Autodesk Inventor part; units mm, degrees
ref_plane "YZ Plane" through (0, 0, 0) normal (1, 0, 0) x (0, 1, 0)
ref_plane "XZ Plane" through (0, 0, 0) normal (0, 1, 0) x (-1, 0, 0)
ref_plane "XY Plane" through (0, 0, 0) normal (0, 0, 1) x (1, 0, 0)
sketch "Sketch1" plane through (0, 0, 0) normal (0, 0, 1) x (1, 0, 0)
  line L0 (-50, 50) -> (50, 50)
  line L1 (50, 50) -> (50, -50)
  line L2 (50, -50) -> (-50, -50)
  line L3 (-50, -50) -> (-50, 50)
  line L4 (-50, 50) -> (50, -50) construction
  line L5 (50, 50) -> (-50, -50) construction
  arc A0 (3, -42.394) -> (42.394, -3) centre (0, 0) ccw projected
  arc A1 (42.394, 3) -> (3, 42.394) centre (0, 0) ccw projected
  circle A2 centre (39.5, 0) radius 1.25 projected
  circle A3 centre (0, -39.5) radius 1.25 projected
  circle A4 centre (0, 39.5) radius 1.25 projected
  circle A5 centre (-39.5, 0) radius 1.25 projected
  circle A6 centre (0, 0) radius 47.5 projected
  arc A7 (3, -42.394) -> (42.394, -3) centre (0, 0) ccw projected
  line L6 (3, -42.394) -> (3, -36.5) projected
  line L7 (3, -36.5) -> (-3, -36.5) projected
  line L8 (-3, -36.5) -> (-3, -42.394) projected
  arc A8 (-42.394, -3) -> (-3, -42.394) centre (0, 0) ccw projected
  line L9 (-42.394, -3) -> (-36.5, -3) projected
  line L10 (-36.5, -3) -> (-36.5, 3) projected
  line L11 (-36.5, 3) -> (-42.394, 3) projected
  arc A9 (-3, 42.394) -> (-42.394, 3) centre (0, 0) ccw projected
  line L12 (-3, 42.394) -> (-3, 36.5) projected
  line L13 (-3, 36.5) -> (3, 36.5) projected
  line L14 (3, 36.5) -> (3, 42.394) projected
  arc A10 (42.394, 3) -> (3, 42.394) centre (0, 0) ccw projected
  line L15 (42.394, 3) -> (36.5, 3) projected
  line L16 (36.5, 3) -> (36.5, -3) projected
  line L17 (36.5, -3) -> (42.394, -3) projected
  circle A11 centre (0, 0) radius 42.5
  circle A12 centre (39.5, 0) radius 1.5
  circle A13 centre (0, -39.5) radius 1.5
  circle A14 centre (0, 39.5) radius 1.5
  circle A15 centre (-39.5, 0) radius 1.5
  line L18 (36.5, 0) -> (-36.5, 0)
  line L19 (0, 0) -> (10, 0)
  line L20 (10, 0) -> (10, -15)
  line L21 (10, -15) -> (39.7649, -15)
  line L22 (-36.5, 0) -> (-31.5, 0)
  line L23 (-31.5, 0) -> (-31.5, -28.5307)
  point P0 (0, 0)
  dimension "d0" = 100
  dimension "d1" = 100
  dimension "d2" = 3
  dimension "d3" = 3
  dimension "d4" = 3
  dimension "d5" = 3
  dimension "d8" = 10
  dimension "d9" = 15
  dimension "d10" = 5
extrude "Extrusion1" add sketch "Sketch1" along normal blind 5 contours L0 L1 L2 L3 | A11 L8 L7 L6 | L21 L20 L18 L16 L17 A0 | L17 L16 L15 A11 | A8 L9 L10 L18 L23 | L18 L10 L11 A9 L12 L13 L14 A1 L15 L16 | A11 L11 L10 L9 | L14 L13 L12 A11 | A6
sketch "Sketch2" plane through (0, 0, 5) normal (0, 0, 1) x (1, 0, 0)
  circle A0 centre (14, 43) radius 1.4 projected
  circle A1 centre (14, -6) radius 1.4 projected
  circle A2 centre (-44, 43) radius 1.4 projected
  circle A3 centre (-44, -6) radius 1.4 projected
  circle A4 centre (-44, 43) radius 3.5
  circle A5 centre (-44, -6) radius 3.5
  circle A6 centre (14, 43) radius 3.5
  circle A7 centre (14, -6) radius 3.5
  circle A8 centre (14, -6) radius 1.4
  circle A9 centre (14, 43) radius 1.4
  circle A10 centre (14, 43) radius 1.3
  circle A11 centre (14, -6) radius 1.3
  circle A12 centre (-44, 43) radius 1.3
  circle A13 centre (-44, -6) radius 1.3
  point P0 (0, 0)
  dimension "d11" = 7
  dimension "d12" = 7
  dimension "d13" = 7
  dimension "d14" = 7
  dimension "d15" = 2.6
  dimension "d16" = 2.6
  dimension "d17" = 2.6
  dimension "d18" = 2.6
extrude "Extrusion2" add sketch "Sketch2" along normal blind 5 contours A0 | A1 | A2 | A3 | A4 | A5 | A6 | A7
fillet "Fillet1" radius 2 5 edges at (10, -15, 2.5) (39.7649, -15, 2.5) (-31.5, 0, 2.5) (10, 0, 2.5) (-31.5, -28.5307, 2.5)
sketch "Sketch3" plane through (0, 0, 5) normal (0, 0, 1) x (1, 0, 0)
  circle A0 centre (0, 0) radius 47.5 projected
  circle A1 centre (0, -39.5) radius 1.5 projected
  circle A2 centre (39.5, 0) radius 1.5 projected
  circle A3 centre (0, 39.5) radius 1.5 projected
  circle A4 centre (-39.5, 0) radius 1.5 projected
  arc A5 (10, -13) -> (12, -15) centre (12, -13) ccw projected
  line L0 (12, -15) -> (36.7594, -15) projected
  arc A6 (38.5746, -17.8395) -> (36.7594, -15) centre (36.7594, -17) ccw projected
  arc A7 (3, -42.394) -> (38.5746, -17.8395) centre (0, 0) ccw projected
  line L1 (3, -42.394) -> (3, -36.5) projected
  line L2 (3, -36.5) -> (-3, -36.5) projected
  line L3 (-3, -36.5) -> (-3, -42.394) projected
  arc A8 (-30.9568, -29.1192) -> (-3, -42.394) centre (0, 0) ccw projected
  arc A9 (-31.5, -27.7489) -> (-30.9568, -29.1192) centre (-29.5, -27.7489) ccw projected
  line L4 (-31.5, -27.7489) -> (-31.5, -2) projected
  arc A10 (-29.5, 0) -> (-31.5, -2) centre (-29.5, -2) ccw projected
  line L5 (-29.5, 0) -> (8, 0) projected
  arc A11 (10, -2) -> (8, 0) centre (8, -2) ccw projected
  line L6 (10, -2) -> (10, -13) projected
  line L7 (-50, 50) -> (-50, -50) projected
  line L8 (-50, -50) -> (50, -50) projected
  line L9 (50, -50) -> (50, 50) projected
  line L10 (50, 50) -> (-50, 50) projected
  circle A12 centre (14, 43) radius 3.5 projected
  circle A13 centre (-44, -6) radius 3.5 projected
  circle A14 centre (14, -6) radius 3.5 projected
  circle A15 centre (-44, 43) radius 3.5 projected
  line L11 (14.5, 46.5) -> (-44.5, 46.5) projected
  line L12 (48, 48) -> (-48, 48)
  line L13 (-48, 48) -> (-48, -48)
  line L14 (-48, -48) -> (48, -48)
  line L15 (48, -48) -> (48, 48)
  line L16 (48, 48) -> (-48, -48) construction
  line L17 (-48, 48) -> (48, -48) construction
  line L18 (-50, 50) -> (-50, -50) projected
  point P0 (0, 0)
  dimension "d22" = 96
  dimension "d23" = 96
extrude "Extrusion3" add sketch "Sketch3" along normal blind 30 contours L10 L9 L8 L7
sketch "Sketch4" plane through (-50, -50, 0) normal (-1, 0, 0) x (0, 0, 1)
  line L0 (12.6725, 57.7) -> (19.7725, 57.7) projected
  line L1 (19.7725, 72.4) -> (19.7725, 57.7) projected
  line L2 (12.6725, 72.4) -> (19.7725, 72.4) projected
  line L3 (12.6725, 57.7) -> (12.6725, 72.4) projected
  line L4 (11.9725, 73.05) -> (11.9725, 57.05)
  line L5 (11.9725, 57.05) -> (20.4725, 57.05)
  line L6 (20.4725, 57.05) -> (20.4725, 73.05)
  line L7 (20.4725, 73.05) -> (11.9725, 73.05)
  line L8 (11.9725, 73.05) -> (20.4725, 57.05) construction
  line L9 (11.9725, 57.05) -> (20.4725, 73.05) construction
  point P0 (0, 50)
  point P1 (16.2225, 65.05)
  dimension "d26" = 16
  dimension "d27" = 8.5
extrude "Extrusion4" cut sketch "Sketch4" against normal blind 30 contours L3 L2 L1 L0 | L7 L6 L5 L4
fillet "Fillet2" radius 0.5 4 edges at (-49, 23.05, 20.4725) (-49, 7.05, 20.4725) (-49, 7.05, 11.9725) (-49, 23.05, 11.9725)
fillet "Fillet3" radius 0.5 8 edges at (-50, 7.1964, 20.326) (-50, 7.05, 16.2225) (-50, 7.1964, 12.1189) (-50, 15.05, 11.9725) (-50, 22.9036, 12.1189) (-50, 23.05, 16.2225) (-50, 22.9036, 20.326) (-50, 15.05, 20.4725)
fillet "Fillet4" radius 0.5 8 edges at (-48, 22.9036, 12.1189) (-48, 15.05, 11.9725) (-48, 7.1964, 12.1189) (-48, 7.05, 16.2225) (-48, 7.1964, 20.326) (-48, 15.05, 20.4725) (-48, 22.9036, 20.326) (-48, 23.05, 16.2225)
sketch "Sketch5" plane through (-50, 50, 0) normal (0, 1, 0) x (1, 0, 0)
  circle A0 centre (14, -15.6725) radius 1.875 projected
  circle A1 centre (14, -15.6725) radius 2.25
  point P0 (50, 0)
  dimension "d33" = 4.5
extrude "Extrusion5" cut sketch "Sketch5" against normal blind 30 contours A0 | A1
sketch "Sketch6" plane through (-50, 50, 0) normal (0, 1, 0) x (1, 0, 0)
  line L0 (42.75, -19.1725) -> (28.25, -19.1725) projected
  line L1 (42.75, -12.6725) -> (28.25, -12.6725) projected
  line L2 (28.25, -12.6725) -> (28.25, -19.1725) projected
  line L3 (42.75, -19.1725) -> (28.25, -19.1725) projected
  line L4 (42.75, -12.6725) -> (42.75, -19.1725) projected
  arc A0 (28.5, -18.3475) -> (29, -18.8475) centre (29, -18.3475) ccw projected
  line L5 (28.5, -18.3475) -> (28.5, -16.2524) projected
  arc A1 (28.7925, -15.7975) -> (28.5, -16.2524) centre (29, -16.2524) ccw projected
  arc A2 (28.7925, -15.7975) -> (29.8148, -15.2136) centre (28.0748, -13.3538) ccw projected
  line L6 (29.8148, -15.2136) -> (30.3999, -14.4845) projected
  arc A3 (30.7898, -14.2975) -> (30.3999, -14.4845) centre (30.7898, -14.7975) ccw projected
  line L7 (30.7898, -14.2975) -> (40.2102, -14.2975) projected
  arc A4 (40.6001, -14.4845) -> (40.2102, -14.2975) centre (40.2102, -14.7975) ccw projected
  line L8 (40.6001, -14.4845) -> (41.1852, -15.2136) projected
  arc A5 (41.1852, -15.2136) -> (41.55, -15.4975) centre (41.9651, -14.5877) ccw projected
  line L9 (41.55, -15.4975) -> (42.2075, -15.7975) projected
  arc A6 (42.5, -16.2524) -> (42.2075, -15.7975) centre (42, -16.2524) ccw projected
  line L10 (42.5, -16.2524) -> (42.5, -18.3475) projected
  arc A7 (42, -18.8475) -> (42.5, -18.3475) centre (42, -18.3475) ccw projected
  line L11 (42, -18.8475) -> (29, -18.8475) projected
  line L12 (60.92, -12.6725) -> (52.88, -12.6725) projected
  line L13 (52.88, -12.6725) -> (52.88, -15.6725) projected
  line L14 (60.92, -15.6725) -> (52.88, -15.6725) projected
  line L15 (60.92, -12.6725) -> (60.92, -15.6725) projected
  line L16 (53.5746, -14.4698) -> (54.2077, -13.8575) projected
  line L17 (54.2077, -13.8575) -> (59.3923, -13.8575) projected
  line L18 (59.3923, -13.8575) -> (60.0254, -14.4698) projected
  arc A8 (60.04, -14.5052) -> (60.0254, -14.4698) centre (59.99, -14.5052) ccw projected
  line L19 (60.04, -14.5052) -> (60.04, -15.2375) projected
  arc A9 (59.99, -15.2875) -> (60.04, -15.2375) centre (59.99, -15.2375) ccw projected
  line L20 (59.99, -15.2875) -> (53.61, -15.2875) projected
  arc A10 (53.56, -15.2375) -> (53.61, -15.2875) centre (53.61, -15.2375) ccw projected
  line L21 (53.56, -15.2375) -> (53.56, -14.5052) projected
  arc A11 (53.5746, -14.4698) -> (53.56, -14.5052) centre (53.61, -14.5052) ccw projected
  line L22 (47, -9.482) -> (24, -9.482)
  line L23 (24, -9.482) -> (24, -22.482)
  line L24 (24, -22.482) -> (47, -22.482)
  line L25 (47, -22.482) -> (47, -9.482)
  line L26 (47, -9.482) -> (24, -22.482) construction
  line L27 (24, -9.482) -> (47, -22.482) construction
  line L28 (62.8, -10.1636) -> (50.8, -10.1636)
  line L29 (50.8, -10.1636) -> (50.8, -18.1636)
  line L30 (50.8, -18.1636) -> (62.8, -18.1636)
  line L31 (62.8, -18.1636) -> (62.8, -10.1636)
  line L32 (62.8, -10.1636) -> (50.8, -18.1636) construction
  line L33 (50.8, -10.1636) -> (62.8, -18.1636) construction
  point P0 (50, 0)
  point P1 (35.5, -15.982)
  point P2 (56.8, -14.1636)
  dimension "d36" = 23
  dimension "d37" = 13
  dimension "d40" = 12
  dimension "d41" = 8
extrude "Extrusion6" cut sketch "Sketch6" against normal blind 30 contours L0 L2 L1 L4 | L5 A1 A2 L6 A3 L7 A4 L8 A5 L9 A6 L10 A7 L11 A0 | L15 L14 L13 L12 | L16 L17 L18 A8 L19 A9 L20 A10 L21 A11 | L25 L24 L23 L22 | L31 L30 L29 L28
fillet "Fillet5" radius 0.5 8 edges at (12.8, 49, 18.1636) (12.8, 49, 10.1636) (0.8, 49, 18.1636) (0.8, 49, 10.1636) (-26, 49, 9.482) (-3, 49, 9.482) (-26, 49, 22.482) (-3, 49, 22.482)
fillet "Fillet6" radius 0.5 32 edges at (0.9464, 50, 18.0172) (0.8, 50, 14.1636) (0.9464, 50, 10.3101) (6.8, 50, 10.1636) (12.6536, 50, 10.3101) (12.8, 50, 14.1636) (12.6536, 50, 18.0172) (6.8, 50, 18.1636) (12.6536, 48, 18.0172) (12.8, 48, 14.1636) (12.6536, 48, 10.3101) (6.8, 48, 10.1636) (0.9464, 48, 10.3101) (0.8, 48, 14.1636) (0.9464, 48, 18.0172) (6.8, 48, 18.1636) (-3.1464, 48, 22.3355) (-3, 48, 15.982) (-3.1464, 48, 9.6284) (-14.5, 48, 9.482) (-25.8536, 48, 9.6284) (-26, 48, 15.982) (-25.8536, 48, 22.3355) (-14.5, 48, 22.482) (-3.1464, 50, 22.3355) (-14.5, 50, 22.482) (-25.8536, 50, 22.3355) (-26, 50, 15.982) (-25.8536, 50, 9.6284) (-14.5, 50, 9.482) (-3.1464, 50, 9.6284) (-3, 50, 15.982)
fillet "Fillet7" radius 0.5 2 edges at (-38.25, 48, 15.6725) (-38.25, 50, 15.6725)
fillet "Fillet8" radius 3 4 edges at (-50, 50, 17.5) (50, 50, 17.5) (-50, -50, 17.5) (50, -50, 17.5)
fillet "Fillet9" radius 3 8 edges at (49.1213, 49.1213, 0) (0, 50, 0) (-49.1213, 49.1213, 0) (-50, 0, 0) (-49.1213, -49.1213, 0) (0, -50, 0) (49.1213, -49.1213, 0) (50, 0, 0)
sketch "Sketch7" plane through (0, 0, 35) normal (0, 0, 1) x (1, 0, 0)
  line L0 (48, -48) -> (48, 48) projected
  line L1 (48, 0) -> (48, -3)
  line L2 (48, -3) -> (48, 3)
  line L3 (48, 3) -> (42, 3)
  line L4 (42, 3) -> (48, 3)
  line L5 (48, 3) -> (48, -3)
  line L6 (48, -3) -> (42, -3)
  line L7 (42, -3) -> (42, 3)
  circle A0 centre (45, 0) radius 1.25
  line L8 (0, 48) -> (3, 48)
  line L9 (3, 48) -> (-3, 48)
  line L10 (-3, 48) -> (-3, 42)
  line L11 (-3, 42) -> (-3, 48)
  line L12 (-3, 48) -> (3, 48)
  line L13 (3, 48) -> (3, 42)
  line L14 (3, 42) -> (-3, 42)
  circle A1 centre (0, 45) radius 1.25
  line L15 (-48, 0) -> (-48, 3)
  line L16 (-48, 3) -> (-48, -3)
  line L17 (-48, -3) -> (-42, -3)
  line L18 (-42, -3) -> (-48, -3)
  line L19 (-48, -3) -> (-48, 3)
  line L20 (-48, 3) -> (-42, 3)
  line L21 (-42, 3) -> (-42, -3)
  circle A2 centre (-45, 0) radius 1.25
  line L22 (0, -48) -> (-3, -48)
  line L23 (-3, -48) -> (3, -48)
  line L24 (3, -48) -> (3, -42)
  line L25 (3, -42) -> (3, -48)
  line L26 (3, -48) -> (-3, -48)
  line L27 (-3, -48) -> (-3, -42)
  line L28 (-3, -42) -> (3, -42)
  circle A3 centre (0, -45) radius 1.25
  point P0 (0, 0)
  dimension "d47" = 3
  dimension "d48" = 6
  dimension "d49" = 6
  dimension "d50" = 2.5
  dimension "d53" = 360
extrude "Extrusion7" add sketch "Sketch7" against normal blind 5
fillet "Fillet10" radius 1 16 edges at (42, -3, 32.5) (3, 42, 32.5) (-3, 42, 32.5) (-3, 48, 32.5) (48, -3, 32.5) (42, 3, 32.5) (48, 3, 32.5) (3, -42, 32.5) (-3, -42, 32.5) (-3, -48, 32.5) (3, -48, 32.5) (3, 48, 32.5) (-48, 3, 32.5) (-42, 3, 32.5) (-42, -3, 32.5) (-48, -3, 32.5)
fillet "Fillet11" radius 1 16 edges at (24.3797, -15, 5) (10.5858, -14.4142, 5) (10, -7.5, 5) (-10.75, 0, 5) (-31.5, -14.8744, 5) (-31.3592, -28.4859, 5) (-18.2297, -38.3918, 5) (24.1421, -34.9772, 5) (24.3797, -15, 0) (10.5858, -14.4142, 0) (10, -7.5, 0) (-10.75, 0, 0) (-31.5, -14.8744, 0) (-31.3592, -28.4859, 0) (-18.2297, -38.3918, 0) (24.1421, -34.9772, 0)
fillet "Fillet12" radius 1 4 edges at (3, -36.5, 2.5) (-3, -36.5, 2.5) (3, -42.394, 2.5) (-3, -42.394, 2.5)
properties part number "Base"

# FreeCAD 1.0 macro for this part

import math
import FreeCAD as App
import Part
import Sketcher
from FreeCAD import Vector


def edges_at(feature, points):
    """Names of the edges that pass closest to the given points."""
    edges = feature.Shape.Edges
    near = lambda p: min(range(len(edges)), key=lambda i: edges[i].distToShape(Part.Vertex(*p))[0])
    return sorted({f"Edge{near(p) + 1}" for p in points})


def add_polygon(sketch, points):
    """Adds a closed chain of lines whose ends are joined by coincident constraints."""
    first, n = sketch.GeometryCount, len(points)
    for a, b in zip(points, points[1:] + points[:1]):
        sketch.addGeometry(Part.LineSegment(App.Vector(*a, 0), App.Vector(*b, 0)), False)
    for i in range(n):
        sketch.addConstraint(Sketcher.Constraint("Coincident", first + i, 2, first + (i + 1) % n, 1))

doc = App.newDocument("Part")
body = doc.addObject("PartDesign::Body", "Body")

sketch1 = doc.addObject("Sketcher::SketchObject", "Sketch")
body.addObject(sketch1)
sketch1.AttachmentSupport = (doc.XY_Plane, [""])
sketch1.MapMode = "FlatFace"
add_polygon(sketch1, [(50, 50), (-50, 50), (-50, -50), (50, -50)])
sketch1.addGeometry(Part.ArcOfCircle(Part.Circle(Vector(0, 0, 0), Vector(0, 0, 1), 42.5), math.radians(-86), math.radians(-21)), False)
sketch1.addGeometry(Part.LineSegment(Vector(3, -42.4, 0), Vector(3, -36.5, 0)), False)
sketch1.addGeometry(Part.LineSegment(Vector(3, -36.5, 0), Vector(-3, -36.5, 0)), False)
sketch1.addGeometry(Part.LineSegment(Vector(-3, -36.5, 0), Vector(-3, -42.4, 0)), False)
sketch1.addGeometry(Part.ArcOfCircle(Part.Circle(Vector(0, 0, 0), Vector(0, 0, 1), 42.5), math.radians(-138), math.radians(-94)), False)
sketch1.addGeometry(Part.LineSegment(Vector(-31.5, -28.5, 0), Vector(-31.5, 0, 0)), False)
sketch1.addGeometry(Part.LineSegment(Vector(-31.5, 0, 0), Vector(10, 0, 0)), False)
sketch1.addGeometry(Part.LineSegment(Vector(10, 0, 0), Vector(10, -15, 0)), False)
sketch1.addGeometry(Part.LineSegment(Vector(10, -15, 0), Vector(39.8, -15, 0)), False)
sketch1.addGeometry(Part.Circle(Vector(0, -39.5, 0), Vector(0, 0, 1), 1.5), False)
sketch1.addGeometry(Part.Circle(Vector(39.5, 0, 0), Vector(0, 0, 1), 1.5), False)
sketch1.addGeometry(Part.Circle(Vector(0, 39.5, 0), Vector(0, 0, 1), 1.5), False)
sketch1.addGeometry(Part.Circle(Vector(-39.5, 0, 0), Vector(0, 0, 1), 1.5), False)
sketch1.addConstraint([
    Sketcher.Constraint("Coincident", 4, 1, 5, 1),
    Sketcher.Constraint("Coincident", 5, 2, 6, 1),
    Sketcher.Constraint("Coincident", 6, 2, 7, 1),
    Sketcher.Constraint("Coincident", 7, 2, 8, 2),
    Sketcher.Constraint("Coincident", 8, 1, 9, 1),
    Sketcher.Constraint("Coincident", 9, 2, 10, 1),
    Sketcher.Constraint("Coincident", 10, 2, 11, 1),
    Sketcher.Constraint("Coincident", 11, 2, 12, 1),
    Sketcher.Constraint("Coincident", 12, 2, 4, 2),
    Sketcher.Constraint("Horizontal", 0),
    Sketcher.Constraint("Vertical", 1),
    Sketcher.Constraint("Horizontal", 2),
    Sketcher.Constraint("Vertical", 3),
    Sketcher.Constraint("Vertical", 5),
    Sketcher.Constraint("Horizontal", 6),
    Sketcher.Constraint("Vertical", 7),
    Sketcher.Constraint("Vertical", 9),
    Sketcher.Constraint("Horizontal", 10),
    Sketcher.Constraint("Vertical", 11),
    Sketcher.Constraint("Horizontal", 12),
    Sketcher.Constraint("Coincident", 4, 3, -1, 1),
    Sketcher.Constraint("Coincident", 8, 3, -1, 1),
    Sketcher.Constraint("Equal", 4, 8),
    Sketcher.Constraint("Equal", 13, 14),
    Sketcher.Constraint("Equal", 14, 15),
    Sketcher.Constraint("Equal", 15, 16),
    Sketcher.Constraint("Symmetric", 13, 3, 15, 3, -1, 1),
    Sketcher.Constraint("Symmetric", 14, 3, 16, 3, -1, 1),
    Sketcher.Constraint("Symmetric", 0, 2, 2, 2, -1, 1),
    Sketcher.Constraint("PointOnObject", 13, 3, -2),
    Sketcher.Constraint("PointOnObject", 14, 3, -1),
    Sketcher.Constraint("PointOnObject", 9, 2, -1),
    Sketcher.Constraint("Horizontal", 4, 1, 7, 2),
    Sketcher.Constraint("Equal", 2, 1),
    Sketcher.Constraint("Diameter", 13, 3.0),
    Sketcher.Constraint("DistanceX", 0, 2, 0, 1, 100.0),
    Sketcher.Constraint("DistanceY", 11, 2, 11, 1, 15.0),
    Sketcher.Constraint("DistanceX", -1, 1, 4, 1, 3.0),
    Sketcher.Constraint("DistanceX", -1, 1, 10, 2, 10.0),
    Sketcher.Constraint("DistanceY", 13, 3, 5, 2, 3.0),
    Sketcher.Constraint("Radius", 4, 42.5),
    Sketcher.Constraint("DistanceX", 10, 1, 10, 2, 41.5),
    Sketcher.Constraint("DistanceY", 13, 3, 15, 3, 79.0),
    Sketcher.Constraint("DistanceX", 16, 3, 14, 3, 79.0),
])
pad1 = doc.addObject("PartDesign::Pad", "Pad")
body.addObject(pad1)
pad1.Profile = sketch1
pad1.Length = 5

sketch2 = doc.addObject("Sketcher::SketchObject", "Sketch001")
body.addObject(sketch2)
sketch2.AttachmentSupport = (doc.XY_Plane, [""])
sketch2.MapMode = "FlatFace"
sketch2.AttachmentOffset = App.Placement(Vector(0, 0, 5), App.Rotation())
sketch2.addGeometry([
    Part.Circle(Vector(14, 43, 0), Vector(0, 0, 1), 3.5),
    Part.Circle(Vector(14, 43, 0), Vector(0, 0, 1), 1.3),
    Part.Circle(Vector(14, -6, 0), Vector(0, 0, 1), 3.5),
    Part.Circle(Vector(14, -6, 0), Vector(0, 0, 1), 1.3),
    Part.Circle(Vector(-44, 43, 0), Vector(0, 0, 1), 3.5),
    Part.Circle(Vector(-44, 43, 0), Vector(0, 0, 1), 1.3),
    Part.Circle(Vector(-44, -6, 0), Vector(0, 0, 1), 3.5),
    Part.Circle(Vector(-44, -6, 0), Vector(0, 0, 1), 1.3),
], False)
sketch2.addConstraint([
    Sketcher.Constraint("Coincident", 1, 3, 0, 3),
    Sketcher.Constraint("Coincident", 3, 3, 2, 3),
    Sketcher.Constraint("Coincident", 5, 3, 4, 3),
    Sketcher.Constraint("Coincident", 7, 3, 6, 3),
    Sketcher.Constraint("Equal", 0, 2),
    Sketcher.Constraint("Equal", 1, 3),
    Sketcher.Constraint("Equal", 2, 4),
    Sketcher.Constraint("Equal", 3, 5),
    Sketcher.Constraint("Equal", 4, 6),
    Sketcher.Constraint("Equal", 5, 7),
    Sketcher.Constraint("Horizontal", 1, 3, 4, 3),
    Sketcher.Constraint("Horizontal", 3, 3, 6, 3),
    Sketcher.Constraint("Vertical", 1, 3, 2, 3),
    Sketcher.Constraint("Vertical", 5, 3, 6, 3),
    Sketcher.Constraint("Diameter", 0, 7.0),
    Sketcher.Constraint("Diameter", 1, 2.6),
    Sketcher.Constraint("DistanceX", -1, 1, 0, 3, 14.0),
    Sketcher.Constraint("DistanceY", -1, 1, 0, 3, 43.0),
    Sketcher.Constraint("DistanceY", 2, 3, -1, 1, 6.0),
    Sketcher.Constraint("DistanceX", 4, 3, -1, 1, 44.0),
])
pad2 = doc.addObject("PartDesign::Pad", "Pad001")
body.addObject(pad2)
pad2.Profile = sketch2
pad2.Length = 5
doc.recompute()

fillet = doc.addObject("PartDesign::Fillet", "Fillet")
body.addObject(fillet)
fillet.Base = (pad2, edges_at(pad2, [
    (10, -15, 2.5),
    (39.765, -15, 2.5),
    (-31.5, 0, 2.5),
    (10, 0, 2.5),
    (-31.5, -28.531, 2.5),
]))
fillet.Radius = 2

sketch3 = doc.addObject("Sketcher::SketchObject", "Sketch002")
body.addObject(sketch3)
sketch3.AttachmentSupport = (doc.XY_Plane, [""])
sketch3.MapMode = "FlatFace"
sketch3.AttachmentOffset = App.Placement(Vector(0, 0, 5), App.Rotation())
add_polygon(sketch3, [(50, 50), (-50, 50), (-50, -50), (50, -50)])
add_polygon(sketch3, [(-48, 48), (48, 48), (48, -48), (-48, -48)])
sketch3.addConstraint([
    Sketcher.Constraint("Horizontal", 0),
    Sketcher.Constraint("Vertical", 1),
    Sketcher.Constraint("Horizontal", 2),
    Sketcher.Constraint("Vertical", 3),
    Sketcher.Constraint("Horizontal", 4),
    Sketcher.Constraint("Vertical", 5),
    Sketcher.Constraint("Horizontal", 6),
    Sketcher.Constraint("Vertical", 7),
    Sketcher.Constraint("Symmetric", 0, 2, 2, 2, -1, 1),
    Sketcher.Constraint("Symmetric", 4, 2, 6, 2, -1, 1),
    Sketcher.Constraint("Equal", 2, 1),
    Sketcher.Constraint("Equal", 6, 5),
    Sketcher.Constraint("DistanceX", 4, 1, 4, 2, 96.0),
    Sketcher.Constraint("DistanceX", 0, 2, 0, 1, 100.0),
])
pad3 = doc.addObject("PartDesign::Pad", "Pad002")
body.addObject(pad3)
pad3.Profile = sketch3
pad3.Length = 30

sketch4 = doc.addObject("Sketcher::SketchObject", "Sketch003")
body.addObject(sketch4)
sketch4.AttachmentSupport = (doc.YZ_Plane, [""])
sketch4.MapMode = "FlatFace"
sketch4.AttachmentOffset = App.Placement(Vector(0, 0, -50), App.Rotation())
add_polygon(sketch4, [(23, 20), (23, 12), (7, 12), (7, 20)])
sketch4.addConstraint([
    Sketcher.Constraint("Vertical", 0),
    Sketcher.Constraint("Horizontal", 1),
    Sketcher.Constraint("Vertical", 2),
    Sketcher.Constraint("Horizontal", 3),
    Sketcher.Constraint("DistanceX", 1, 2, 1, 1, 16.0),
    Sketcher.Constraint("DistanceY", 0, 2, 0, 1, 8.5),
    Sketcher.Constraint("DistanceX", -1, 1, 0, 2, 23.05),
    Sketcher.Constraint("DistanceY", -1, 1, 0, 2, 11.9725),
])
pocket1 = doc.addObject("PartDesign::Pocket", "Pocket")
body.addObject(pocket1)
pocket1.Profile = sketch4
pocket1.Length = 30
pocket1.Reversed = True
doc.recompute()

fillet2 = doc.addObject("PartDesign::Fillet", "Fillet001")
body.addObject(fillet2)
fillet2.Base = (pocket1, edges_at(pocket1, [
    (-49, 23.05, 20.473),
    (-49, 7.05, 20.473),
    (-49, 7.05, 11.973),
    (-49, 23.05, 11.973),
]))
fillet2.Radius = 0.5
doc.recompute()

fillet3 = doc.addObject("PartDesign::Fillet", "Fillet002")
body.addObject(fillet3)
fillet3.Base = (fillet2, edges_at(fillet2, [
    (-50, 7.196, 20.326),
    (-50, 7.05, 16.223),
    (-50, 7.196, 12.119),
    (-50, 15.05, 11.973),
    (-50, 22.904, 12.119),
    (-50, 23.05, 16.223),
    (-50, 22.904, 20.326),
    (-50, 15.05, 20.473),
]))
fillet3.Radius = 0.5
doc.recompute()

fillet4 = doc.addObject("PartDesign::Fillet", "Fillet003")
body.addObject(fillet4)
fillet4.Base = (fillet3, edges_at(fillet3, [
    (-48, 22.904, 12.119),
    (-48, 15.05, 11.973),
    (-48, 7.196, 12.119),
    (-48, 7.05, 16.223),
    (-48, 7.196, 20.326),
    (-48, 15.05, 20.473),
    (-48, 22.904, 20.326),
    (-48, 23.05, 16.223),
]))
fillet4.Radius = 0.5

sketch5 = doc.addObject("Sketcher::SketchObject", "Sketch004")
body.addObject(sketch5)
sketch5.AttachmentSupport = (doc.XZ_Plane, [""])
sketch5.MapMode = "FlatFace"
sketch5.AttachmentOffset = App.Placement(Vector(0, 0, -50), App.Rotation())
sketch5.addGeometry(Part.Circle(Vector(-36, 15.7, 0), Vector(0, 0, 1), 2.2), False)
sketch5.addConstraint([
    Sketcher.Constraint("Diameter", 0, 4.5),
    Sketcher.Constraint("DistanceX", 0, 3, -1, 1, 36.0),
    Sketcher.Constraint("DistanceY", -1, 1, 0, 3, 15.6725),
])
pocket2 = doc.addObject("PartDesign::Pocket", "Pocket001")
body.addObject(pocket2)
pocket2.Profile = sketch5
pocket2.Length = 30
pocket2.Reversed = True

sketch6 = doc.addObject("Sketcher::SketchObject", "Sketch005")
body.addObject(sketch6)
sketch6.AttachmentSupport = (doc.XZ_Plane, [""])
sketch6.MapMode = "FlatFace"
sketch6.AttachmentOffset = App.Placement(Vector(0, 0, -50), App.Rotation())
add_polygon(sketch6, [(-3, 22), (-3, 9), (-26, 9), (-26, 22)])
add_polygon(sketch6, [(13, 18), (13, 10), (1, 10), (1, 18)])
sketch6.addConstraint([
    Sketcher.Constraint("Vertical", 0),
    Sketcher.Constraint("Horizontal", 1),
    Sketcher.Constraint("Vertical", 2),
    Sketcher.Constraint("Horizontal", 3),
    Sketcher.Constraint("Vertical", 4),
    Sketcher.Constraint("Horizontal", 5),
    Sketcher.Constraint("Vertical", 6),
    Sketcher.Constraint("Horizontal", 7),
    Sketcher.Constraint("DistanceX", 1, 2, 1, 1, 23.0),
    Sketcher.Constraint("DistanceX", 5, 2, 5, 1, 12.0),
    Sketcher.Constraint("DistanceY", 0, 2, 0, 1, 13.0),
    Sketcher.Constraint("DistanceY", 4, 2, 4, 1, 8.0),
    Sketcher.Constraint("DistanceX", 0, 2, -1, 1, 3.0),
    Sketcher.Constraint("DistanceX", -1, 1, 4, 2, 12.8),
    Sketcher.Constraint("DistanceY", -1, 1, 0, 2, 9.482),
    Sketcher.Constraint("DistanceY", -1, 1, 4, 2, 10.1636),
])
pocket3 = doc.addObject("PartDesign::Pocket", "Pocket002")
body.addObject(pocket3)
pocket3.Profile = sketch6
pocket3.Length = 30
pocket3.Reversed = True
doc.recompute()

fillet5 = doc.addObject("PartDesign::Fillet", "Fillet004")
body.addObject(fillet5)
fillet5.Base = (pocket3, edges_at(pocket3, [
    (12.8, 49, 18.164),
    (12.8, 49, 10.164),
    (0.8, 49, 18.164),
    (0.8, 49, 10.164),
    (-26, 49, 9.482),
    (-3, 49, 9.482),
    (-26, 49, 22.482),
    (-3, 49, 22.482),
]))
fillet5.Radius = 0.5
doc.recompute()

fillet6 = doc.addObject("PartDesign::Fillet", "Fillet005")
body.addObject(fillet6)
fillet6.Base = (fillet5, edges_at(fillet5, [
    (0.946, 50, 18.017),
    (0.8, 50, 14.164),
    (0.946, 50, 10.31),
    (6.8, 50, 10.164),
    (12.654, 50, 10.31),
    (12.8, 50, 14.164),
    (12.654, 50, 18.017),
    (6.8, 50, 18.164),
    (12.654, 48, 18.017),
    (12.8, 48, 14.164),
    (12.654, 48, 10.31),
    (6.8, 48, 10.164),
    (0.946, 48, 10.31),
    (0.8, 48, 14.164),
    (0.946, 48, 18.017),
    (6.8, 48, 18.164),
    (-3.146, 48, 22.335),
    (-3, 48, 15.982),
    (-3.146, 48, 9.628),
    (-14.5, 48, 9.482),
    (-25.854, 48, 9.628),
    (-26, 48, 15.982),
    (-25.854, 48, 22.335),
    (-14.5, 48, 22.482),
    (-3.146, 50, 22.335),
    (-14.5, 50, 22.482),
    (-25.854, 50, 22.335),
    (-26, 50, 15.982),
    (-25.854, 50, 9.628),
    (-14.5, 50, 9.482),
    (-3.146, 50, 9.628),
    (-3, 50, 15.982),
]))
fillet6.Radius = 0.5
doc.recompute()

fillet7 = doc.addObject("PartDesign::Fillet", "Fillet006")
body.addObject(fillet7)
fillet7.Base = (fillet6, edges_at(fillet6, [(-38.25, 48, 15.672), (-38.25, 50, 15.672)]))
fillet7.Radius = 0.5
doc.recompute()

fillet8 = doc.addObject("PartDesign::Fillet", "Fillet007")
body.addObject(fillet8)
fillet8.Base = (fillet7, edges_at(fillet7, [
    (-50, 50, 17.5),
    (50, 50, 17.5),
    (-50, -50, 17.5),
    (50, -50, 17.5),
]))
fillet8.Radius = 3
doc.recompute()

fillet9 = doc.addObject("PartDesign::Fillet", "Fillet008")
body.addObject(fillet9)
fillet9.Base = (fillet8, edges_at(fillet8, [
    (49.121, 49.121, 0),
    (0, 50, 0),
    (-49.121, 49.121, 0),
    (-50, 0, 0),
    (-49.121, -49.121, 0),
    (0, -50, 0),
    (49.121, -49.121, 0),
    (50, 0, 0),
]))
fillet9.Radius = 3

sketch7 = doc.addObject("Sketcher::SketchObject", "Sketch006")
body.addObject(sketch7)
sketch7.AttachmentSupport = (doc.XY_Plane, [""])
sketch7.MapMode = "FlatFace"
sketch7.AttachmentOffset = App.Placement(Vector(0, 0, 35), App.Rotation())
add_polygon(sketch7, [(42, -3), (48, -3), (48, 3), (42, 3)])
sketch7.addGeometry(Part.Circle(Vector(45, 0, 0), Vector(0, 0, 1), 1.2), False)
add_polygon(sketch7, [(3, 48), (-3, 48), (-3, 42), (3, 42)])
sketch7.addGeometry(Part.Circle(Vector(0, 45, 0), Vector(0, 0, 1), 1.2), False)
add_polygon(sketch7, [(-48, 3), (-48, -3), (-42, -3), (-42, 3)])
sketch7.addGeometry(Part.Circle(Vector(-45, 0, 0), Vector(0, 0, 1), 1.2), False)
add_polygon(sketch7, [(-3, -48), (3, -48), (3, -42), (-3, -42)])
sketch7.addGeometry(Part.Circle(Vector(0, -45, 0), Vector(0, 0, 1), 1.2), False)
sketch7.addConstraint([
    Sketcher.Constraint("Horizontal", 0),
    Sketcher.Constraint("Vertical", 1),
    Sketcher.Constraint("Horizontal", 2),
    Sketcher.Constraint("Vertical", 3),
    Sketcher.Constraint("Horizontal", 5),
    Sketcher.Constraint("Vertical", 6),
    Sketcher.Constraint("Horizontal", 7),
    Sketcher.Constraint("Vertical", 8),
    Sketcher.Constraint("Vertical", 10),
    Sketcher.Constraint("Horizontal", 11),
    Sketcher.Constraint("Vertical", 12),
    Sketcher.Constraint("Horizontal", 13),
    Sketcher.Constraint("Horizontal", 15),
    Sketcher.Constraint("Vertical", 16),
    Sketcher.Constraint("Horizontal", 17),
    Sketcher.Constraint("Vertical", 18),
    Sketcher.Constraint("Equal", 4, 9),
    Sketcher.Constraint("Equal", 9, 14),
    Sketcher.Constraint("Equal", 14, 19),
    Sketcher.Constraint("Symmetric", 4, 3, 14, 3, -1, 1),
    Sketcher.Constraint("Symmetric", 9, 3, 19, 3, -1, 1),
    Sketcher.Constraint("Symmetric", 1, 2, 10, 2, -1, 1),
    Sketcher.Constraint("Symmetric", 3, 2, 12, 2, -1, 1),
    Sketcher.Constraint("Symmetric", 5, 2, 15, 2, -1, 1),
    Sketcher.Constraint("Symmetric", 7, 2, 17, 2, -1, 1),
    Sketcher.Constraint("PointOnObject", 4, 3, -1),
    Sketcher.Constraint("PointOnObject", 9, 3, -2),
    Sketcher.Constraint("Horizontal", 3, 2, 10, 2),
    Sketcher.Constraint("Vertical", 8, 2, 15, 2),
    Sketcher.Constraint("Equal", 2, 5),
    Sketcher.Constraint("Equal", 17, 1),
    Sketcher.Constraint("Equal", 3, 6),
    Sketcher.Constraint("Diameter", 4, 2.5),
    Sketcher.Constraint("DistanceX", 0, 1, 0, 2, 6.0),
    Sketcher.Constraint("DistanceX", 4, 3, 0, 2, 3.0),
    Sketcher.Constraint("DistanceY", 9, 3, 5, 2, 3.0),
    Sketcher.Constraint("DistanceX", -1, 1, 4, 3, 45.0),
    Sketcher.Constraint("DistanceY", -1, 1, 9, 3, 45.0),
])
pad4 = doc.addObject("PartDesign::Pad", "Pad003")
body.addObject(pad4)
pad4.Profile = sketch7
pad4.Length = 5
pad4.Reversed = True
doc.recompute()

fillet10 = doc.addObject("PartDesign::Fillet", "Fillet009")
body.addObject(fillet10)
fillet10.Base = (pad4, edges_at(pad4, [
    (42, -3, 32.5),
    (3, 42, 32.5),
    (-3, 42, 32.5),
    (-3, 48, 32.5),
    (48, -3, 32.5),
    (42, 3, 32.5),
    (48, 3, 32.5),
    (3, -42, 32.5),
    (-3, -42, 32.5),
    (-3, -48, 32.5),
    (3, -48, 32.5),
    (3, 48, 32.5),
    (-48, 3, 32.5),
    (-42, 3, 32.5),
    (-42, -3, 32.5),
    (-48, -3, 32.5),
]))
fillet10.Radius = 1
doc.recompute()

fillet11 = doc.addObject("PartDesign::Fillet", "Fillet010")
body.addObject(fillet11)
fillet11.Base = (fillet10, edges_at(fillet10, [
    (24.38, -15, 5),
    (10.586, -14.414, 5),
    (10, -7.5, 5),
    (-10.75, 0, 5),
    (-31.5, -14.874, 5),
    (-31.359, -28.486, 5),
    (-18.23, -38.392, 5),
    (24.142, -34.977, 5),
    (24.38, -15, 0),
    (10.586, -14.414, 0),
    (10, -7.5, 0),
    (-10.75, 0, 0),
    (-31.5, -14.874, 0),
    (-31.359, -28.486, 0),
    (-18.23, -38.392, 0),
    (24.142, -34.977, 0),
]))
fillet11.Radius = 1
doc.recompute()

fillet12 = doc.addObject("PartDesign::Fillet", "Fillet011")
body.addObject(fillet12)
fillet12.Base = (fillet11, edges_at(fillet11, [
    (3, -36.5, 2.5),
    (-3, -36.5, 2.5),
    (3, -42.394, 2.5),
    (-3, -42.394, 2.5),
]))
fillet12.Radius = 1

doc.recompute()
